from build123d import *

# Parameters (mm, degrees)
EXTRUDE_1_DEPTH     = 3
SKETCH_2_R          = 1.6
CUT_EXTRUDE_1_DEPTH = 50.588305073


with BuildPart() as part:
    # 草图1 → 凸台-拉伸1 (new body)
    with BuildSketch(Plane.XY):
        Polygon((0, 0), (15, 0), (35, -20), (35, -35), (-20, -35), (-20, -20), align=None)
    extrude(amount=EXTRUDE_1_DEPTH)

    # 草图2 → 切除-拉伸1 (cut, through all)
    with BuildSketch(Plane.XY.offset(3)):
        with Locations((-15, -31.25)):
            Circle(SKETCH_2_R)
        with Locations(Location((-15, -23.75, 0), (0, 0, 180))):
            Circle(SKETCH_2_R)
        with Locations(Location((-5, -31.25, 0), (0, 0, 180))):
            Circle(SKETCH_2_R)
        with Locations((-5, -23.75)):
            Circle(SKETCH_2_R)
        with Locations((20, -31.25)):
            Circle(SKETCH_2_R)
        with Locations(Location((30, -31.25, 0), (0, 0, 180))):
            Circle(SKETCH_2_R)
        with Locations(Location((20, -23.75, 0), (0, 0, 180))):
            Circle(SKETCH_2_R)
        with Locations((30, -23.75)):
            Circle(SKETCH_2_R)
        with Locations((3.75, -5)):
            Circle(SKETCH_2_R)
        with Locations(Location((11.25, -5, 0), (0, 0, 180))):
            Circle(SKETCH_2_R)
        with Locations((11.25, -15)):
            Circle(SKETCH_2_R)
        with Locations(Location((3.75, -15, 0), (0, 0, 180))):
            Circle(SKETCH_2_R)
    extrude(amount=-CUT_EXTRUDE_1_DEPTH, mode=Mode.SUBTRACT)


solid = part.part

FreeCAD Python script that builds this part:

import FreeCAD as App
import Part
import Sketcher

V = App.Vector
Q = App.Units.Quantity

doc = App.newDocument("Part")
body = doc.addObject("PartDesign::Body", "Body")

# Sketch on XY plane
sketch1 = body.newObject("Sketcher::SketchObject", "Sketch")
sketch1.AttachmentSupport = (doc.getObject("XY_Plane"), [""])
sketch1.MapMode = "FlatFace"
sketch1.addGeometry([
    Part.LineSegment(V(15, 0, 0), V(0, 0, 0)),  # 0
    Part.LineSegment(V(0, 0, 0), V(-20, -20, 0)),  # 1
    Part.LineSegment(V(-20, -20, 0), V(-20, -35, 0)),  # 2
    Part.LineSegment(V(-20, -35, 0), V(35, -35, 0)),  # 3
    Part.LineSegment(V(35, -35, 0), V(35, -20, 0)),  # 4
    Part.LineSegment(V(35, -20, 0), V(15, 0, 0)),  # 5
], False)
sketch1.addConstraint([
    Sketcher.Constraint("Coincident", 0, 2, 1, 1),
    Sketcher.Constraint("Coincident", 1, 2, 2, 1),
    Sketcher.Constraint("Coincident", 2, 2, 3, 1),
    Sketcher.Constraint("Coincident", 3, 2, 4, 1),
    Sketcher.Constraint("Coincident", 4, 2, 5, 1),
    Sketcher.Constraint("Coincident", 5, 2, 0, 1),
    Sketcher.Constraint("Horizontal", 0),
    Sketcher.Constraint("Vertical", 2),
    Sketcher.Constraint("Horizontal", 3),
    Sketcher.Constraint("Vertical", 4),
    Sketcher.Constraint("Coincident", 0, 2, -1, 1),
    Sketcher.Constraint("Perpendicular", 1, 5),
    Sketcher.Constraint("Horizontal", 1, 2, 4, 2),
    Sketcher.Constraint("Equal", 0, 2),
    Sketcher.Constraint("Equal", 1, 5),
    Sketcher.Constraint("DistanceX", 0, 2, 0, 1, Q("15 mm")),
    Sketcher.Constraint("DistanceX", 3, 1, 3, 2, Q("55 mm")),
])
pad1 = body.newObject("PartDesign::Pad", "Pad")
pad1.Profile = sketch1
pad1.Length = 3

# Sketch on XY plane
sketch2 = body.newObject("Sketcher::SketchObject", "Sketch001")
sketch2.AttachmentSupport = (doc.getObject("XY_Plane"), [""])
sketch2.MapMode = "FlatFace"
sketch2.AttachmentOffset = App.Placement(V(0, 0, 3), App.Rotation())
sketch2.addGeometry([
    Part.Circle(V(-15, -31.2, 0), V(0, 0, 1), 1.6),  # 0
    Part.Circle(V(-15, -23.8, 0), V(0, 0, 1), 1.6),  # 1
    Part.Circle(V(-5, -31.2, 0), V(0, 0, 1), 1.6),  # 2
    Part.Circle(V(-5, -23.8, 0), V(0, 0, 1), 1.6),  # 3
    Part.Circle(V(20, -31.2, 0), V(0, 0, 1), 1.6),  # 4
    Part.Circle(V(30, -31.2, 0), V(0, 0, 1), 1.6),  # 5
    Part.Circle(V(20, -23.8, 0), V(0, 0, 1), 1.6),  # 6
    Part.Circle(V(30, -23.8, 0), V(0, 0, 1), 1.6),  # 7
    Part.Circle(V(3.8, -5, 0), V(0, 0, 1), 1.6),  # 8
    Part.Circle(V(11.2, -5, 0), V(0, 0, 1), 1.6),  # 9
    Part.Circle(V(11.2, -15, 0), V(0, 0, 1), 1.6),  # 10
    Part.Circle(V(3.8, -15, 0), V(0, 0, 1), 1.6),  # 11
], False)
sketch2.addConstraint([
    Sketcher.Constraint("Equal", 0, 1),
    Sketcher.Constraint("Equal", 1, 2),
    Sketcher.Constraint("Equal", 2, 3),
    Sketcher.Constraint("Equal", 3, 4),
    Sketcher.Constraint("Equal", 4, 5),
    Sketcher.Constraint("Equal", 5, 6),
    Sketcher.Constraint("Equal", 6, 7),
    Sketcher.Constraint("Equal", 7, 8),
    Sketcher.Constraint("Equal", 8, 9),
    Sketcher.Constraint("Equal", 9, 10),
    Sketcher.Constraint("Equal", 10, 11),
    Sketcher.Constraint("Horizontal", 0, 3, 2, 3),
    Sketcher.Constraint("Horizontal", 1, 3, 3, 3),
    Sketcher.Constraint("Horizontal", 2, 3, 4, 3),
    Sketcher.Constraint("Horizontal", 4, 3, 5, 3),
    Sketcher.Constraint("Horizontal", 3, 3, 6, 3),
    Sketcher.Constraint("Horizontal", 6, 3, 7, 3),
    Sketcher.Constraint("Horizontal", 8, 3, 9, 3),
    Sketcher.Constraint("Horizontal", 10, 3, 11, 3),
    Sketcher.Constraint("Vertical", 0, 3, 1, 3),
    Sketcher.Constraint("Vertical", 2, 3, 3, 3),
    Sketcher.Constraint("Vertical", 4, 3, 6, 3),
    Sketcher.Constraint("Vertical", 5, 3, 7, 3),
    Sketcher.Constraint("Vertical", 9, 3, 10, 3),
    Sketcher.Constraint("Vertical", 8, 3, 11, 3),
    Sketcher.Constraint("Diameter", 0, Q("3.2 mm")),
    Sketcher.Constraint("DistanceX", 0, 3, -1, 1, Q("15 mm")),
    Sketcher.Constraint("DistanceX", 2, 3, -1, 1, Q("5 mm")),
    Sketcher.Constraint("DistanceX", -1, 1, 4, 3, Q("20 mm")),
    Sketcher.Constraint("DistanceX", -1, 1, 5, 3, Q("30 mm")),
    Sketcher.Constraint("DistanceY", 8, 3, -1, 1, Q("5 mm")),
    Sketcher.Constraint("DistanceY", 10, 3, -1, 1, Q("15 mm")),
    Sketcher.Constraint("DistanceY", 0, 3, 1, 3, Q("7.5 mm")),
    Sketcher.Constraint("DistanceX", 8, 3, 9, 3, Q("7.5 mm")),
    Sketcher.Constraint("DistanceY", 0, 3, -1, 1, Q("31.25 mm")),
    Sketcher.Constraint("DistanceX", -1, 1, 8, 3, Q("3.75 mm")),
])
pocket1 = body.newObject("PartDesign::Pocket", "Pocket")
pocket1.Profile = sketch2
pocket1.Type = "ThroughAll"

doc.recompute()
